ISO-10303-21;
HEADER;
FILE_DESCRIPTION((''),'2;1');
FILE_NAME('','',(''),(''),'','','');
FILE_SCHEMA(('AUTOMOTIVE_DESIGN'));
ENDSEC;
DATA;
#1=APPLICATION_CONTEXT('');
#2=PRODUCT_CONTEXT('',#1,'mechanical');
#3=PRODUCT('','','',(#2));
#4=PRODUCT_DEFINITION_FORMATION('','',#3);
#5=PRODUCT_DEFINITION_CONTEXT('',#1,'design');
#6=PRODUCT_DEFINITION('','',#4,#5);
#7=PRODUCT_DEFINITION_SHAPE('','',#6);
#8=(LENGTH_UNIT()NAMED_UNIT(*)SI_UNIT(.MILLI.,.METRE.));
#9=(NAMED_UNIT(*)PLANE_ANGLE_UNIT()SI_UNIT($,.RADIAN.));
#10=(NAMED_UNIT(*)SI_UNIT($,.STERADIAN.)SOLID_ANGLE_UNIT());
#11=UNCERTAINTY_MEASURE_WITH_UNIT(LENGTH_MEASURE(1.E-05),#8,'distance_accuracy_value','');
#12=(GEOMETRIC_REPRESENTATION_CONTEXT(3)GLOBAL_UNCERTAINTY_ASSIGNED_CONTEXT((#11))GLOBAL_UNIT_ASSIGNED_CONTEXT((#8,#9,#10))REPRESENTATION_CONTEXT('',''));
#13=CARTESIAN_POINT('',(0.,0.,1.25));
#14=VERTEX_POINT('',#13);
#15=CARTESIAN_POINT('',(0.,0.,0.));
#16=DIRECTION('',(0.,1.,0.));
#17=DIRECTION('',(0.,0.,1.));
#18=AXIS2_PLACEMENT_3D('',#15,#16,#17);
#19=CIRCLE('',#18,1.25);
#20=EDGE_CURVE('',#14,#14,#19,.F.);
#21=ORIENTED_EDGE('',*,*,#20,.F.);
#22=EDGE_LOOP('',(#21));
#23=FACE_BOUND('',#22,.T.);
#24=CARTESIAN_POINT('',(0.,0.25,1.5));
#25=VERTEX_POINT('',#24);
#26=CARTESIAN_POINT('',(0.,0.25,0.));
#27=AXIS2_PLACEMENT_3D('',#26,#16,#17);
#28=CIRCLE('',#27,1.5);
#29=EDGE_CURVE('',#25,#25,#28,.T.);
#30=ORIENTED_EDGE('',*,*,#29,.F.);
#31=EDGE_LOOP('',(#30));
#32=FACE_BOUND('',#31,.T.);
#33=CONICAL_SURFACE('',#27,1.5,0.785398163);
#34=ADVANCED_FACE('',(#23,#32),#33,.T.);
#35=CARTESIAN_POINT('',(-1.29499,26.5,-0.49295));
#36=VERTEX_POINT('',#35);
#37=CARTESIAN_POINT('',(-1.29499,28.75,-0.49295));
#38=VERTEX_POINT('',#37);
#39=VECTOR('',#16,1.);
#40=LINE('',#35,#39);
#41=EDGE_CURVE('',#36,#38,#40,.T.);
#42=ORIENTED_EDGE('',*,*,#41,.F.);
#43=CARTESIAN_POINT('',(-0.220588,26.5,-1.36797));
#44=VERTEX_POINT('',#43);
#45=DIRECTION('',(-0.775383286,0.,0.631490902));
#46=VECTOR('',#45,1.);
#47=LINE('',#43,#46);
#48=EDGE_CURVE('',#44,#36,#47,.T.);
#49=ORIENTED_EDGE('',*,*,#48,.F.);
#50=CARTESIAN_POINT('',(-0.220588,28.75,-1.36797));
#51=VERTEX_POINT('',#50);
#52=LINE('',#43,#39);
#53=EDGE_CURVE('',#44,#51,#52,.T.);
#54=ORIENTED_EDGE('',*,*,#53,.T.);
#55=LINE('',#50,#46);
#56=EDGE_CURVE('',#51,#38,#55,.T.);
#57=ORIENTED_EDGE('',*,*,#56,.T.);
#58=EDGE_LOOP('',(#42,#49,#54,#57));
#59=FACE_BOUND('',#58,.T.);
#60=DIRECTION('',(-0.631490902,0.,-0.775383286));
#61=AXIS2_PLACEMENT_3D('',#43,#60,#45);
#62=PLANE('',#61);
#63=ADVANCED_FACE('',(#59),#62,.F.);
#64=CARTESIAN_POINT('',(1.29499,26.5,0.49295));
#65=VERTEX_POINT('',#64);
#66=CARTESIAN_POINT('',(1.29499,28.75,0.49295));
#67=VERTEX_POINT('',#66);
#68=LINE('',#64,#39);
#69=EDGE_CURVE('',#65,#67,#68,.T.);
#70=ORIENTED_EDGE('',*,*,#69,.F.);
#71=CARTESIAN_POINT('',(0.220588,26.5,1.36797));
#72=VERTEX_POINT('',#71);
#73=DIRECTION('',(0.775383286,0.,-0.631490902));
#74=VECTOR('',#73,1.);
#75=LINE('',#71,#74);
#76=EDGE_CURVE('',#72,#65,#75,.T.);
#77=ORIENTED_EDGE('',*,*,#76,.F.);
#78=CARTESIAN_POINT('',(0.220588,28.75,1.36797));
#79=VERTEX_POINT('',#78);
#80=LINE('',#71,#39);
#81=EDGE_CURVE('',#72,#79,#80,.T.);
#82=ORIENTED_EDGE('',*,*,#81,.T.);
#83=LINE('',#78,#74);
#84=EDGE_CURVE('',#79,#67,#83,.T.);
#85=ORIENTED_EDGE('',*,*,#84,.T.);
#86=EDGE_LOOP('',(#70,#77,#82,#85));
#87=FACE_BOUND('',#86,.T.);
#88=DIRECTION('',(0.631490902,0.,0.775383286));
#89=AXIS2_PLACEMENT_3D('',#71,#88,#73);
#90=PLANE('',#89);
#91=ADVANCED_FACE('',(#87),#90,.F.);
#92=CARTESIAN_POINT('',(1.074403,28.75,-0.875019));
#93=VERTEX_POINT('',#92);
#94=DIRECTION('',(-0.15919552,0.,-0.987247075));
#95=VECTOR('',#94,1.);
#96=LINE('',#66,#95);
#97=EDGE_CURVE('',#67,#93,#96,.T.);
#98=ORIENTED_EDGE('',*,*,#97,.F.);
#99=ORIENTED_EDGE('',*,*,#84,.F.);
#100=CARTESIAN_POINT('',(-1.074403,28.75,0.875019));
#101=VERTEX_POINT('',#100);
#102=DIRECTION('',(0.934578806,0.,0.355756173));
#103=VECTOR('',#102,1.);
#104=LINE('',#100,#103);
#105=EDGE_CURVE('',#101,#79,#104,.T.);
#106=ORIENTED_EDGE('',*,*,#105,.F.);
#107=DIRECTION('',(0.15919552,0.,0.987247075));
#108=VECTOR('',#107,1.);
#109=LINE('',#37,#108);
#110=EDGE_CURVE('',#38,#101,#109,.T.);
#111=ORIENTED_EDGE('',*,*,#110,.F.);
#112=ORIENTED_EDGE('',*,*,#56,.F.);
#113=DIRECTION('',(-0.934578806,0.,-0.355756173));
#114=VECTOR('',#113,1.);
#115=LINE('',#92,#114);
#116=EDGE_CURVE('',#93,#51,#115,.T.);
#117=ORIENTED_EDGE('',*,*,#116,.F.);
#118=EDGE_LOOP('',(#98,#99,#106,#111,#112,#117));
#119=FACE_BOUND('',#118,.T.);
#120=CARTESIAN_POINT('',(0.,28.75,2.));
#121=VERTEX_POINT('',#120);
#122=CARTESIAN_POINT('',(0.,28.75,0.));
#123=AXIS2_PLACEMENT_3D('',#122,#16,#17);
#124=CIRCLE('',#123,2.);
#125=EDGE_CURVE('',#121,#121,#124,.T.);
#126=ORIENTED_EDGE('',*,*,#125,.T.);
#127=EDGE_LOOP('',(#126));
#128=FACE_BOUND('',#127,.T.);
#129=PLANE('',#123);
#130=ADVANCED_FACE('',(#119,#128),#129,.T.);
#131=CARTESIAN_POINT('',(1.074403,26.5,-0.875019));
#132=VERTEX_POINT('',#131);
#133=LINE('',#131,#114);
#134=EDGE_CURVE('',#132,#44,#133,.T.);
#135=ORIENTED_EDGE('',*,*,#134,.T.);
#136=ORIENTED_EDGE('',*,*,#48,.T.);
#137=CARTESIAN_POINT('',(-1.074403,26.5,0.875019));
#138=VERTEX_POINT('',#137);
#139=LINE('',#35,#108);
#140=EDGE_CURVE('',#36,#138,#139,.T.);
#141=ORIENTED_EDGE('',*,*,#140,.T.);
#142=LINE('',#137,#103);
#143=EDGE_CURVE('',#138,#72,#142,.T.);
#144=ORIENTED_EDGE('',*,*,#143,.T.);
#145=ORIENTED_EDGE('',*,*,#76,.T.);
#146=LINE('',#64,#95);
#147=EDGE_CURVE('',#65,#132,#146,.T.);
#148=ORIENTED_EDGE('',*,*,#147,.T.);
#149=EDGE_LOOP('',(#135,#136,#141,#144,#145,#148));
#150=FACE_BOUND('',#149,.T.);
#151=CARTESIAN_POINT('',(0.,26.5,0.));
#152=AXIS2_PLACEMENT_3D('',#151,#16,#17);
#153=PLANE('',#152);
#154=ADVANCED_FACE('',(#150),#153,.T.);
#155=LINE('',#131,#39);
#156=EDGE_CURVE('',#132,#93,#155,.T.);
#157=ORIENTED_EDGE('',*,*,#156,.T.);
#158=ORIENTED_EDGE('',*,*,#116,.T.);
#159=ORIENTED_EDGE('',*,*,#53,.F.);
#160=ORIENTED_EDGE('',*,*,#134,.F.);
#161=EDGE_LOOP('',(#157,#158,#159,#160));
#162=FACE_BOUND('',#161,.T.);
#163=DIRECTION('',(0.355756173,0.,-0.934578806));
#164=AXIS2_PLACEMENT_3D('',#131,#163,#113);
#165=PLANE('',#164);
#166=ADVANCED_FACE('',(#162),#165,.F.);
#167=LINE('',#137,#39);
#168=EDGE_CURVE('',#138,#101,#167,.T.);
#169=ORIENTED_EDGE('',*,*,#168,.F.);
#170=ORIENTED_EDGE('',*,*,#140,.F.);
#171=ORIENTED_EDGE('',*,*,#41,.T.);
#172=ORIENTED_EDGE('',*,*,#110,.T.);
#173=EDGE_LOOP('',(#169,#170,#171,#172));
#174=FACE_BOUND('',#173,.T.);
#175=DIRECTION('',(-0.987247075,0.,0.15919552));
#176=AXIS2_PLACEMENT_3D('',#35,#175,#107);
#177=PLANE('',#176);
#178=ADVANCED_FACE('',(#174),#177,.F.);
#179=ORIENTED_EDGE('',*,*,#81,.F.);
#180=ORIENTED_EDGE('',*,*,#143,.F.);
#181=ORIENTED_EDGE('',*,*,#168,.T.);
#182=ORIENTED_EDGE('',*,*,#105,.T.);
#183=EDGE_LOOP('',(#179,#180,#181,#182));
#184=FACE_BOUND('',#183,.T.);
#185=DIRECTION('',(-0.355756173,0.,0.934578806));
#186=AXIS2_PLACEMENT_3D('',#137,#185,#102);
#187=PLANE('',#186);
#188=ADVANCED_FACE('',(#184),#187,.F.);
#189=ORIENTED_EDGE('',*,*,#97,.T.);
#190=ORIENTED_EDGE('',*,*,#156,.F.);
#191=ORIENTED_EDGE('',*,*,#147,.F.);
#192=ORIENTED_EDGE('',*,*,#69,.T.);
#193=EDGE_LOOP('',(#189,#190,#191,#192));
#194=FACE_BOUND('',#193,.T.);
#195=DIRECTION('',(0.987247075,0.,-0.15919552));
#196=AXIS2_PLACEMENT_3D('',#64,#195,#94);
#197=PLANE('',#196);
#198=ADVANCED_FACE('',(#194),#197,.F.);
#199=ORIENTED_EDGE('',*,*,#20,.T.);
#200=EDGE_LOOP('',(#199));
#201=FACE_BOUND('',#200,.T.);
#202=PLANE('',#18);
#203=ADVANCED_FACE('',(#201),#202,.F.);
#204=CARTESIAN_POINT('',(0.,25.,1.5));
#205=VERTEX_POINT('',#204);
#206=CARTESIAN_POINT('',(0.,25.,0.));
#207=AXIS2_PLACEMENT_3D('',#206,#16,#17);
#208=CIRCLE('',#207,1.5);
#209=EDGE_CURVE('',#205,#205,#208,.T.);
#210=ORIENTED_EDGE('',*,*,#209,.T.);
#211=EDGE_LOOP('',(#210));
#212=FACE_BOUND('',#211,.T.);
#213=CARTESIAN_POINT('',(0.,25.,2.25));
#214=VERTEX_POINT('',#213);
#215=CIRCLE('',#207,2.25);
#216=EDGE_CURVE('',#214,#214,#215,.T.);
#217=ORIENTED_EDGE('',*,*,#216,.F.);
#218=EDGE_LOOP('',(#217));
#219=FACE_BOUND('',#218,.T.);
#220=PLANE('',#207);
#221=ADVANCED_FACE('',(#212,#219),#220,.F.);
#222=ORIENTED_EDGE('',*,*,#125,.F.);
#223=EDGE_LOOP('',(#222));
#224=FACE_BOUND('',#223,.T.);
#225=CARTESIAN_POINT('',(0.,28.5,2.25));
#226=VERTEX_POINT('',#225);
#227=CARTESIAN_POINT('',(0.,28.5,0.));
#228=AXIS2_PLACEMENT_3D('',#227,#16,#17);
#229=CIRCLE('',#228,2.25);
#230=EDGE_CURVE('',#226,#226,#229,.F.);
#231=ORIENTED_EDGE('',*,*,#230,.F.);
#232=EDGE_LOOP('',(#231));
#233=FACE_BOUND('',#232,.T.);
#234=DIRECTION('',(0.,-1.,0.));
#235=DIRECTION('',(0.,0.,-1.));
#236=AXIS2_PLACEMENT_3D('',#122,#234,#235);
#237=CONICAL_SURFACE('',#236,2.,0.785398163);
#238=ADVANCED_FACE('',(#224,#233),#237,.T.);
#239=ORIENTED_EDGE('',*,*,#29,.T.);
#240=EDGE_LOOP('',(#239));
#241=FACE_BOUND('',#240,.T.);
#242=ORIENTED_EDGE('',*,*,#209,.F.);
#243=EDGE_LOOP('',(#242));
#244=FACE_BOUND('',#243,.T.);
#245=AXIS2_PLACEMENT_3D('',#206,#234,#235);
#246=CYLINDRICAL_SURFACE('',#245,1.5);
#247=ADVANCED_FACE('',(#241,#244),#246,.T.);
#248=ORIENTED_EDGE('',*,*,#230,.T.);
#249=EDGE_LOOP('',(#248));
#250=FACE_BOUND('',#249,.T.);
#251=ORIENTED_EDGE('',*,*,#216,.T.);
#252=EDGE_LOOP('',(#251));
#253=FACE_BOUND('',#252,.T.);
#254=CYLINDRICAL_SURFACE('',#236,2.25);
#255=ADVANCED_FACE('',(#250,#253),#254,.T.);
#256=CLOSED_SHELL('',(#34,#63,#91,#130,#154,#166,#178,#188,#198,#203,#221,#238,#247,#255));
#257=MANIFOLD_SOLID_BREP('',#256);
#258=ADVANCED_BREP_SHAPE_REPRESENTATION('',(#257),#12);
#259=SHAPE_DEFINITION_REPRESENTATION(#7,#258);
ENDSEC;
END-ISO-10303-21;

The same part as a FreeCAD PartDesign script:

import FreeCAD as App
import Part
import Sketcher


def edges_at(feature, points):
    """Names of the edges that pass closest to the given points."""
    edges = feature.Shape.Edges
    near = lambda p: min(range(len(edges)), key=lambda i: edges[i].distToShape(Part.Vertex(*p))[0])
    return sorted({f"Edge{near(p) + 1}" for p in points})


def add_polygon(sketch, points):
    """Adds a closed chain of lines whose ends are joined by coincident constraints."""
    first, n = sketch.GeometryCount, len(points)
    for a, b in zip(points, points[1:] + points[:1]):
        sketch.addGeometry(Part.LineSegment(App.Vector(*a, 0), App.Vector(*b, 0)), False)
    for i in range(n):
        sketch.addConstraint(Sketcher.Constraint("Coincident", first + i, 2, first + (i + 1) % n, 1))

doc = App.newDocument("Part")
body = doc.addObject("PartDesign::Body", "Body")

sketch1 = body.newObject("Sketcher::SketchObject", "Sketch")
sketch1.AttachmentSupport = (doc.getObject("XZ_Plane"), [""])
sketch1.MapMode = "FlatFace"
sketch1.addGeometry(Part.Circle(App.Vector(0, 0, 0), App.Vector(0, 0, 1), 1.5), False)
sketch1.addConstraint(Sketcher.Constraint("Coincident", 0, 3, -1, 1))
sketch1.addConstraint(Sketcher.Constraint("Diameter", 0, 3.0))
pad1 = body.newObject("PartDesign::Pad", "Pad")
pad1.Profile = sketch1
pad1.Length = 25
pad1.Reversed = True

sketch2 = body.newObject("Sketcher::SketchObject", "Sketch001")
sketch2.AttachmentSupport = (doc.getObject("XZ_Plane"), [""])
sketch2.MapMode = "FlatFace"
sketch2.AttachmentOffset = App.Placement(App.Vector(0, 0, -25), App.Rotation())
sketch2.addGeometry(Part.Circle(App.Vector(0, 0, 0), App.Vector(0, 0, 1), 2.2), False)
sketch2.addConstraint(Sketcher.Constraint("Coincident", 0, 3, -1, 1))
sketch2.addConstraint(Sketcher.Constraint("Diameter", 0, 4.5))
pad2 = body.newObject("PartDesign::Pad", "Pad001")
pad2.Profile = sketch2
pad2.Length = 3.75
pad2.Reversed = True

sketch3 = body.newObject("Sketcher::SketchObject", "Sketch002")
sketch3.AttachmentSupport = (doc.getObject("XZ_Plane"), [""])
sketch3.MapMode = "FlatFace"
sketch3.AttachmentOffset = App.Placement(App.Vector(0, 0, -28.75), App.Rotation())
add_polygon(sketch3, [(-1.1, 0.9), (0.2, 1.4), (1.3, 0.5), (1.1, -0.9), (-0.2, -1.4), (-1.3, -0.5)])
sketch3.addConstraint(Sketcher.Constraint("Symmetric", 0, 2, 3, 2, -1, 1))
sketch3.addConstraint(Sketcher.Constraint("Symmetric", 1, 2, 4, 2, -1, 1))
sketch3.addConstraint(Sketcher.Constraint("Symmetric", 2, 2, 5, 2, -1, 1))
sketch3.addConstraint(Sketcher.Constraint("Equal", 0, 1))
sketch3.addConstraint(Sketcher.Constraint("Equal", 1, 2))
sketch3.addConstraint(Sketcher.Constraint("DistanceY", 4, 2, 1, 2, 0.9859))
sketch3.addConstraint(Sketcher.Constraint("Distance", 0, 1.385641))
sketch3.addConstraint(Sketcher.Constraint("DistanceY", -1, 1, 0, 2, 1.36797))
sketch3.addConstraint(Sketcher.Constraint("DistanceX", -1, 1, 1, 2, 1.29499))
pocket1 = body.newObject("PartDesign::Pocket", "Pocket")
pocket1.Profile = sketch3
pocket1.Length = 2.25
pocket1.Reversed = True
doc.recompute()

chamfer = body.newObject("PartDesign::Chamfer", "Chamfer")
chamfer.Base = (pocket1, edges_at(pocket1, [(0, 28.75, -2.25)]))
chamfer.Size = 0.25
doc.recompute()

chamfer2 = body.newObject("PartDesign::Chamfer", "Chamfer001")
chamfer2.Base = (chamfer, edges_at(chamfer, [(0, 0, -1.5)]))
chamfer2.Size = 0.25

doc.recompute()
